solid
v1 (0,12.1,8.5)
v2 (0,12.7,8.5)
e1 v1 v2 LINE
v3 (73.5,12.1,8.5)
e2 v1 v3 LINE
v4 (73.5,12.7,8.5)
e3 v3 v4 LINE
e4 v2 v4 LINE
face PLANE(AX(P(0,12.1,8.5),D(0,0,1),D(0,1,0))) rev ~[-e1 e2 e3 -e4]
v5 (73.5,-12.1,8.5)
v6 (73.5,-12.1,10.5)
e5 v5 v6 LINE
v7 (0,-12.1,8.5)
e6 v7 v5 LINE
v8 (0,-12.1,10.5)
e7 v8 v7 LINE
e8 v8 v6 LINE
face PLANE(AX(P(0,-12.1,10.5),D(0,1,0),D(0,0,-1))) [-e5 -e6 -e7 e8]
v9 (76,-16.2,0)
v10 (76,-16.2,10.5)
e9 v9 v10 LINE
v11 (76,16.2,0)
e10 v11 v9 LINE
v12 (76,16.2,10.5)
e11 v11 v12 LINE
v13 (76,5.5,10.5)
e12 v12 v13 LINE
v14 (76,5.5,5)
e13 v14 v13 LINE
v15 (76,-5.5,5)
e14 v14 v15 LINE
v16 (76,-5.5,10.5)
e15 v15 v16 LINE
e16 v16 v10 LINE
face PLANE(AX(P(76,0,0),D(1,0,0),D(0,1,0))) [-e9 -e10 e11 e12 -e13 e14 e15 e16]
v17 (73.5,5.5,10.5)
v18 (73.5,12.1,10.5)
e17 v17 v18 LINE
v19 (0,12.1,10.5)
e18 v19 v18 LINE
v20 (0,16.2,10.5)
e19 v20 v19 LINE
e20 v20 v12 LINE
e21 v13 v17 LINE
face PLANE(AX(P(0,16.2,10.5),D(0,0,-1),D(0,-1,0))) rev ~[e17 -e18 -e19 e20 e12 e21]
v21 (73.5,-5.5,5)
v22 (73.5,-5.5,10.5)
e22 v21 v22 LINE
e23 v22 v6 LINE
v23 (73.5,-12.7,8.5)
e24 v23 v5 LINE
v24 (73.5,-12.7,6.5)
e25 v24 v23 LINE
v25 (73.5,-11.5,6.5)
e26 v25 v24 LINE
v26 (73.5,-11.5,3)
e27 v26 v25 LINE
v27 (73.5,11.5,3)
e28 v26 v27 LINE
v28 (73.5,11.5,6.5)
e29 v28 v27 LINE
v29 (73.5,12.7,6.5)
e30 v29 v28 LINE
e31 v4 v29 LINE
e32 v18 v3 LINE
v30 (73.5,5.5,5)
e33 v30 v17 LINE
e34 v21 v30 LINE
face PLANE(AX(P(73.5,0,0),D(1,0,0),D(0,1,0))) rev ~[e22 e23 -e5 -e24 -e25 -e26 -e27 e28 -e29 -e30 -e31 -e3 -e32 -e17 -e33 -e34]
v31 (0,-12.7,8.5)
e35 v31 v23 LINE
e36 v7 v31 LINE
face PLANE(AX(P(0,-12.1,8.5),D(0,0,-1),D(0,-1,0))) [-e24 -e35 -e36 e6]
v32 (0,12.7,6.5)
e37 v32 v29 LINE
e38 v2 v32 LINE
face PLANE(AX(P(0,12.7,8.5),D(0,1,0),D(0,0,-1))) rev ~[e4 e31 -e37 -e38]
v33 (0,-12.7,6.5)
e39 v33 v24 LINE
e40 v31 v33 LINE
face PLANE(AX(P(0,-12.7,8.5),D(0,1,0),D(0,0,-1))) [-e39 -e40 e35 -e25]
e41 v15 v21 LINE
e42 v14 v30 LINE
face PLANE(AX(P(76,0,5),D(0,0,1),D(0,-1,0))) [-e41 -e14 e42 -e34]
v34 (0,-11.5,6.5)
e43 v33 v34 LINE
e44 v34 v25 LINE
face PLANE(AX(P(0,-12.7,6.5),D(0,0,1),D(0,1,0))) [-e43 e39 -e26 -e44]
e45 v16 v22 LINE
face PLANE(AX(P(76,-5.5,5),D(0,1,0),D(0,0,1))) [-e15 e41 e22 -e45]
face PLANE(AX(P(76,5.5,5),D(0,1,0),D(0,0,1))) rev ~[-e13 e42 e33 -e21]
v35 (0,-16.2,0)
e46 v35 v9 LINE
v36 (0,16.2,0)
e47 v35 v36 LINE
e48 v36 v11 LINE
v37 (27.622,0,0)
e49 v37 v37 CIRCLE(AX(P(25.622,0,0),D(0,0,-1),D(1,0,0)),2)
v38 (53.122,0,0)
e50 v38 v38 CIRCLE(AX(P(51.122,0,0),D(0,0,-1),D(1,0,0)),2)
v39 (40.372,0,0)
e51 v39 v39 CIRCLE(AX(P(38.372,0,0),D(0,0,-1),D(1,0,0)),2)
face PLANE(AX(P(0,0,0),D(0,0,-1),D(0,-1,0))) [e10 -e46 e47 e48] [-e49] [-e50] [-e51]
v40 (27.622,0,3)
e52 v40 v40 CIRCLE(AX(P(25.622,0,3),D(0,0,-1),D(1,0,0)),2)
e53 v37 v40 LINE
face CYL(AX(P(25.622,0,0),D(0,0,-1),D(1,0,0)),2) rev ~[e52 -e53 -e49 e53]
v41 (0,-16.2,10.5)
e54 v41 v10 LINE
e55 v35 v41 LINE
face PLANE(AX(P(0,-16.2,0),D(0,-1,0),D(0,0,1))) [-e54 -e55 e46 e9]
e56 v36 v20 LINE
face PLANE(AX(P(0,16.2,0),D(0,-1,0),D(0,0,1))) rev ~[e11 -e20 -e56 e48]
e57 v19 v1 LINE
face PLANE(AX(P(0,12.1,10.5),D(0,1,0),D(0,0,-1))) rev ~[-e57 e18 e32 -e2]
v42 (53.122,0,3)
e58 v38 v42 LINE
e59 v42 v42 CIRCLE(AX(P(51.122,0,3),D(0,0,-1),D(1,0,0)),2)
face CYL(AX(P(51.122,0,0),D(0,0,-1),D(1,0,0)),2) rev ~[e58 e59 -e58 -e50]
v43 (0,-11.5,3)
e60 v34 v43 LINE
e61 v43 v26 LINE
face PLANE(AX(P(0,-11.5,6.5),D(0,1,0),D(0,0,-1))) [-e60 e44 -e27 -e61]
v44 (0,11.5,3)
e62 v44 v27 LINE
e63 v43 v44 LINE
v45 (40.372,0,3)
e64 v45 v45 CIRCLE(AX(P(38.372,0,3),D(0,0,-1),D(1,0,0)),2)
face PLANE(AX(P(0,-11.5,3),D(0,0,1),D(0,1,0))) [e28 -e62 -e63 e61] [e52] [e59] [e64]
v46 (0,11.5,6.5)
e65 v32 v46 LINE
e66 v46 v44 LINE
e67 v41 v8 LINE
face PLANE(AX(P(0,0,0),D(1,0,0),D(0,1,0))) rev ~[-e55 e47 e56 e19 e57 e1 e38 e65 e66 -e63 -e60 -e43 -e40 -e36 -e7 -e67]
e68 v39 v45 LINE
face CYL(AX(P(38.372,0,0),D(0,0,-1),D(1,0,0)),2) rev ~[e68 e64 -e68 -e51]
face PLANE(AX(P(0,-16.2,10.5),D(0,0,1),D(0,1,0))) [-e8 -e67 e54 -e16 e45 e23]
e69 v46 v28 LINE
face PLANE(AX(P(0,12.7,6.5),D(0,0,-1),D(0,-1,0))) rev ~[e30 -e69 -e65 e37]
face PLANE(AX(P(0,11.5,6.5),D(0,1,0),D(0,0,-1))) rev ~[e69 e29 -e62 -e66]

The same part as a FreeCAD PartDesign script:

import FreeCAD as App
import Part
import Sketcher
from FreeCAD import Vector

doc = App.newDocument("Part")
params = doc.addObject("Spreadsheet::Sheet", "Params")
for row, (alias, value) in enumerate([
    ("sketch1_height", "2 mm"),
    ("sketch1_width", "4.1 mm"),
    ("sketch1_width2", "0.6 mm"),
    ("pad1_length", "76 mm"),
    ("sketch2_height", "5.5 mm"),
    ("sketch2_width", "23 mm"),
    ("sketch2_height2", "2 mm"),
    ("sketch2_width2", "6.6 mm"),
    ("sketch2_width3", "0.6 mm"),
    ("pad2_length", "2.5 mm"),
    ("sketch3_diameter", "4 mm"),
    ("pocket1_length", "3 mm"),
], start=1):
    params.set(f"A{row}", alias)
    params.set(f"B{row}", "=" + value)
    params.setAlias(f"B{row}", alias)

body = doc.addObject("PartDesign::Body", "Body")

sketch1 = body.newObject("Sketcher::SketchObject", "Sketch")
sketch1.AttachmentSupport = (doc.getObject("YZ_Plane"), [""])
sketch1.MapMode = "FlatFace"
sketch1.addGeometry([
    Part.LineSegment(Vector(-16.2, 0, 0), Vector(16.2, 0, 0)),
    Part.LineSegment(Vector(16.2, 0, 0), Vector(16.2, 10.5, 0)),
    Part.LineSegment(Vector(16.2, 10.5, 0), Vector(12.1, 10.5, 0)),
    Part.LineSegment(Vector(12.1, 10.5, 0), Vector(12.1, 8.5, 0)),
    Part.LineSegment(Vector(12.1, 8.5, 0), Vector(12.7, 8.5, 0)),
    Part.LineSegment(Vector(12.7, 8.5, 0), Vector(12.7, 6.5, 0)),
    Part.LineSegment(Vector(12.7, 6.5, 0), Vector(11.5, 6.5, 0)),
    Part.LineSegment(Vector(11.5, 6.5, 0), Vector(11.5, 3, 0)),
    Part.LineSegment(Vector(11.5, 3, 0), Vector(-11.5, 3, 0)),
    Part.LineSegment(Vector(-11.5, 3, 0), Vector(-11.5, 6.5, 0)),
    Part.LineSegment(Vector(-11.5, 6.5, 0), Vector(-12.7, 6.5, 0)),
    Part.LineSegment(Vector(-12.7, 6.5, 0), Vector(-12.7, 8.5, 0)),
    Part.LineSegment(Vector(-12.7, 8.5, 0), Vector(-12.1, 8.5, 0)),
    Part.LineSegment(Vector(-12.1, 8.5, 0), Vector(-12.1, 10.5, 0)),
    Part.LineSegment(Vector(-12.1, 10.5, 0), Vector(-16.2, 10.5, 0)),
    Part.LineSegment(Vector(-16.2, 10.5, 0), Vector(-16.2, 0, 0)),
], False)
sketch1.addConstraint([
    Sketcher.Constraint("Coincident", 0, 2, 1, 1),
    Sketcher.Constraint("Coincident", 1, 2, 2, 1),
    Sketcher.Constraint("Coincident", 2, 2, 3, 1),
    Sketcher.Constraint("Coincident", 3, 2, 4, 1),
    Sketcher.Constraint("Coincident", 4, 2, 5, 1),
    Sketcher.Constraint("Coincident", 5, 2, 6, 1),
    Sketcher.Constraint("Coincident", 6, 2, 7, 1),
    Sketcher.Constraint("Coincident", 7, 2, 8, 1),
    Sketcher.Constraint("Coincident", 8, 2, 9, 1),
    Sketcher.Constraint("Coincident", 9, 2, 10, 1),
    Sketcher.Constraint("Coincident", 10, 2, 11, 1),
    Sketcher.Constraint("Coincident", 11, 2, 12, 1),
    Sketcher.Constraint("Coincident", 12, 2, 13, 1),
    Sketcher.Constraint("Coincident", 13, 2, 14, 1),
    Sketcher.Constraint("Coincident", 14, 2, 15, 1),
    Sketcher.Constraint("Coincident", 15, 2, 0, 1),
    Sketcher.Constraint("Horizontal", 0),
    Sketcher.Constraint("Vertical", 1),
    Sketcher.Constraint("Horizontal", 2),
    Sketcher.Constraint("Vertical", 3),
    Sketcher.Constraint("Horizontal", 4),
    Sketcher.Constraint("Vertical", 5),
    Sketcher.Constraint("Horizontal", 6),
    Sketcher.Constraint("Vertical", 7),
    Sketcher.Constraint("Horizontal", 8),
    Sketcher.Constraint("Vertical", 9),
    Sketcher.Constraint("Horizontal", 10),
    Sketcher.Constraint("Vertical", 11),
    Sketcher.Constraint("Horizontal", 12),
    Sketcher.Constraint("Vertical", 13),
    Sketcher.Constraint("Horizontal", 14),
    Sketcher.Constraint("Vertical", 15),
    Sketcher.Constraint("Symmetric", 0, 2, 15, 2, -1, 1),
    Sketcher.Constraint("Symmetric", 6, 2, 9, 2, -2),
    Sketcher.Constraint("Symmetric", 4, 2, 11, 2, -2),
    Sketcher.Constraint("Symmetric", 2, 2, 13, 2, -2),
    Sketcher.Constraint("Equal", 3, 5),
    Sketcher.Constraint("DistanceY", 3, 2, 3, 1, 2.0),
    Sketcher.Constraint("DistanceX", 2, 2, 2, 1, 4.1),
    Sketcher.Constraint("DistanceX", 4, 1, 4, 2, 0.6),
    Sketcher.Constraint("DistanceY", -1, 1, 7, 2, 3.0),
    Sketcher.Constraint("DistanceX", -1, 1, 0, 2, 16.2),
    Sketcher.Constraint("DistanceY", -1, 1, 5, 2, 6.5),
    Sketcher.Constraint("DistanceX", 6, 2, 3, 2, 0.6),
])
sketch1.setExpression("Constraints[37]", "Params.sketch1_height")
sketch1.setExpression("Constraints[38]", "Params.sketch1_width")
sketch1.setExpression("Constraints[39]", "Params.sketch1_width2")
pad1 = body.newObject("PartDesign::Pad", "Pad")
pad1.Profile = sketch1
pad1.setExpression("Length", "Params.pad1_length")

sketch2 = body.newObject("Sketcher::SketchObject", "Sketch001")
sketch2.AttachmentSupport = (doc.getObject("YZ_Plane"), [""])
sketch2.MapMode = "FlatFace"
sketch2.AttachmentOffset = App.Placement(Vector(0, 0, 76), App.Rotation())
sketch2.addGeometry([
    Part.LineSegment(Vector(-5.5, 10.5, 0), Vector(-12.1, 10.5, 0)),
    Part.LineSegment(Vector(-12.1, 10.5, 0), Vector(-12.1, 8.5, 0)),
    Part.LineSegment(Vector(-12.1, 8.5, 0), Vector(-12.7, 8.5, 0)),
    Part.LineSegment(Vector(-12.7, 8.5, 0), Vector(-12.7, 6.5, 0)),
    Part.LineSegment(Vector(-12.7, 6.5, 0), Vector(-11.5, 6.5, 0)),
    Part.LineSegment(Vector(-11.5, 6.5, 0), Vector(-11.5, 3, 0)),
    Part.LineSegment(Vector(-11.5, 3, 0), Vector(11.5, 3, 0)),
    Part.LineSegment(Vector(11.5, 3, 0), Vector(11.5, 6.5, 0)),
    Part.LineSegment(Vector(11.5, 6.5, 0), Vector(12.7, 6.5, 0)),
    Part.LineSegment(Vector(12.7, 6.5, 0), Vector(12.7, 8.5, 0)),
    Part.LineSegment(Vector(12.7, 8.5, 0), Vector(12.1, 8.5, 0)),
    Part.LineSegment(Vector(12.1, 8.5, 0), Vector(12.1, 10.5, 0)),
    Part.LineSegment(Vector(12.1, 10.5, 0), Vector(5.5, 10.5, 0)),
    Part.LineSegment(Vector(5.5, 10.5, 0), Vector(5.5, 5, 0)),
    Part.LineSegment(Vector(5.5, 5, 0), Vector(-5.5, 5, 0)),
    Part.LineSegment(Vector(-5.5, 5, 0), Vector(-5.5, 10.5, 0)),
], False)
sketch2.addConstraint([
    Sketcher.Constraint("Coincident", 0, 2, 1, 1),
    Sketcher.Constraint("Coincident", 1, 2, 2, 1),
    Sketcher.Constraint("Coincident", 2, 2, 3, 1),
    Sketcher.Constraint("Coincident", 3, 2, 4, 1),
    Sketcher.Constraint("Coincident", 4, 2, 5, 1),
    Sketcher.Constraint("Coincident", 5, 2, 6, 1),
    Sketcher.Constraint("Coincident", 6, 2, 7, 1),
    Sketcher.Constraint("Coincident", 7, 2, 8, 1),
    Sketcher.Constraint("Coincident", 8, 2, 9, 1),
    Sketcher.Constraint("Coincident", 9, 2, 10, 1),
    Sketcher.Constraint("Coincident", 10, 2, 11, 1),
    Sketcher.Constraint("Coincident", 11, 2, 12, 1),
    Sketcher.Constraint("Coincident", 12, 2, 13, 1),
    Sketcher.Constraint("Coincident", 13, 2, 14, 1),
    Sketcher.Constraint("Coincident", 14, 2, 15, 1),
    Sketcher.Constraint("Coincident", 15, 2, 0, 1),
    Sketcher.Constraint("Horizontal", 0),
    Sketcher.Constraint("Vertical", 1),
    Sketcher.Constraint("Horizontal", 2),
    Sketcher.Constraint("Vertical", 3),
    Sketcher.Constraint("Horizontal", 4),
    Sketcher.Constraint("Vertical", 5),
    Sketcher.Constraint("Horizontal", 6),
    Sketcher.Constraint("Vertical", 7),
    Sketcher.Constraint("Horizontal", 8),
    Sketcher.Constraint("Vertical", 9),
    Sketcher.Constraint("Horizontal", 10),
    Sketcher.Constraint("Vertical", 11),
    Sketcher.Constraint("Horizontal", 12),
    Sketcher.Constraint("Vertical", 13),
    Sketcher.Constraint("Horizontal", 14),
    Sketcher.Constraint("Vertical", 15),
    Sketcher.Constraint("Symmetric", 4, 2, 7, 2, -2),
    Sketcher.Constraint("Symmetric", 2, 2, 9, 2, -2),
    Sketcher.Constraint("Symmetric", 0, 2, 11, 2, -2),
    Sketcher.Constraint("Equal", 0, 12),
    Sketcher.Constraint("Equal", 1, 3),
    Sketcher.Constraint("DistanceY", 13, 2, 13, 1, 5.5),
    Sketcher.Constraint("DistanceY", -1, 1, 13, 2, 5.0),
    Sketcher.Constraint("DistanceX", -1, 1, 12, 2, 5.5),
    Sketcher.Constraint("DistanceY", 5, 2, 1, 2, 5.5),
    Sketcher.Constraint("DistanceX", 6, 1, 6, 2, 23.0),
    Sketcher.Constraint("DistanceY", 1, 2, 1, 1, 2.0),
    Sketcher.Constraint("DistanceX", 0, 2, 0, 1, 6.6),
    Sketcher.Constraint("DistanceX", 2, 2, 2, 1, 0.6),
])
sketch2.setExpression("Constraints[37]", "Params.sketch2_height")
sketch2.setExpression("Constraints[41]", "Params.sketch2_width")
sketch2.setExpression("Constraints[42]", "Params.sketch2_height2")
sketch2.setExpression("Constraints[43]", "Params.sketch2_width2")
sketch2.setExpression("Constraints[44]", "Params.sketch2_width3")
pad2 = body.newObject("PartDesign::Pad", "Pad001")
pad2.Profile = sketch2
pad2.setExpression("Length", "Params.pad2_length")
pad2.Reversed = True

sketch3 = body.newObject("Sketcher::SketchObject", "Sketch002")
sketch3.AttachmentSupport = (doc.getObject("XY_Plane"), [""])
sketch3.MapMode = "FlatFace"
sketch3.addGeometry([
    Part.Circle(Vector(38.372, 0, 0), Vector(0, 0, 1), 2),
    Part.Circle(Vector(25.622, 0, 0), Vector(0, 0, 1), 2),
    Part.Circle(Vector(51.122, 0, 0), Vector(0, 0, 1), 2),
], False)
sketch3.addConstraint([
    Sketcher.Constraint("Equal", 0, 1),
    Sketcher.Constraint("Equal", 1, 2),
    Sketcher.Constraint("PointOnObject", 0, 3, -1),
    Sketcher.Constraint("PointOnObject", 1, 3, -1),
    Sketcher.Constraint("PointOnObject", 2, 3, -1),
    Sketcher.Constraint("Diameter", 0, 4.0),
    Sketcher.Constraint("DistanceX", 1, 3, 0, 3, 12.75),
    Sketcher.Constraint("DistanceX", 0, 3, 2, 3, 12.75),
    Sketcher.Constraint("DistanceX", -1, 1, 0, 3, 38.372),
])
sketch3.setExpression("Constraints[5]", "Params.sketch3_diameter")
pocket1 = body.newObject("PartDesign::Pocket", "Pocket")
pocket1.Profile = sketch3
pocket1.setExpression("Length", "Params.pocket1_length")
pocket1.Reversed = True

doc.recompute()
